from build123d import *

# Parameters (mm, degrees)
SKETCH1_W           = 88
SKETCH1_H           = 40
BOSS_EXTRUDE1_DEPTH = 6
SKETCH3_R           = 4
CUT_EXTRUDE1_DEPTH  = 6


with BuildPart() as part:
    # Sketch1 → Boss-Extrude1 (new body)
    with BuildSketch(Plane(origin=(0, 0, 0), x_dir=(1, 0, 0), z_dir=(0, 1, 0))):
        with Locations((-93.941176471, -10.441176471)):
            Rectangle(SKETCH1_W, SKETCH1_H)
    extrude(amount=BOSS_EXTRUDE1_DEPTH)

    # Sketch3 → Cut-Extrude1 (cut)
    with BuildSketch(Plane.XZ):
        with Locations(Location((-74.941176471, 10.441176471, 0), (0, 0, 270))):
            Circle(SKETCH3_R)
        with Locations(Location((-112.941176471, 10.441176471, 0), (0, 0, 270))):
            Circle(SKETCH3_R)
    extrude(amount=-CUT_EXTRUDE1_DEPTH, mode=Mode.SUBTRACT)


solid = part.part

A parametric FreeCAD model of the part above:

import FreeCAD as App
import Part
import Sketcher


def add_polygon(sketch, points):
    """Adds a closed chain of lines whose ends are joined by coincident constraints."""
    first, n = sketch.GeometryCount, len(points)
    for a, b in zip(points, points[1:] + points[:1]):
        sketch.addGeometry(Part.LineSegment(App.Vector(*a, 0), App.Vector(*b, 0)), False)
    for i in range(n):
        sketch.addConstraint(Sketcher.Constraint("Coincident", first + i, 2, first + (i + 1) % n, 1))

doc = App.newDocument("Part")
params = doc.addObject("Spreadsheet::Sheet", "Params")
for row, (alias, value) in enumerate([
    ("sketch1_width", "88 mm"),
    ("sketch1_height", "40 mm"),
    ("pad1_length", "6 mm"),
    ("sketch2_diameter", "8 mm"),
    ("pocket1_length", "6 mm"),
], start=1):
    params.set(f"A{row}", alias)
    params.set(f"B{row}", "=" + value)
    params.setAlias(f"B{row}", alias)

body = doc.addObject("PartDesign::Body", "Body")

# Sketch on XZ plane
sketch1 = body.newObject("Sketcher::SketchObject", "Sketch")
sketch1.AttachmentSupport = (doc.getObject("XZ_Plane"), [""])
sketch1.MapMode = "FlatFace"
add_polygon(sketch1, [(-138, -10), (-138, 30), (-50, 30), (-50, -10)])  # lines 0-3
sketch1.addConstraint(Sketcher.Constraint("Vertical", 0))
sketch1.addConstraint(Sketcher.Constraint("Horizontal", 1))
sketch1.addConstraint(Sketcher.Constraint("Vertical", 2))
sketch1.addConstraint(Sketcher.Constraint("Horizontal", 3))
sketch1.addConstraint(Sketcher.Constraint("DistanceX", 1, 1, 1, 2, 88.0))
sketch1.addConstraint(Sketcher.Constraint("DistanceY", 0, 1, 0, 2, 40.0))
sketch1.addConstraint(Sketcher.Constraint("DistanceX", 0, 2, -1, 1, 137.941176))
sketch1.addConstraint(Sketcher.Constraint("DistanceY", -1, 1, 0, 2, 30.441176))
sketch1.setExpression("Constraints[8]", "Params.sketch1_width")
sketch1.setExpression("Constraints[9]", "Params.sketch1_height")
pad1 = body.newObject("PartDesign::Pad", "Pad")
pad1.Profile = sketch1
pad1.setExpression("Length", "Params.pad1_length")
pad1.Reversed = True

# Sketch on XZ plane
sketch2 = body.newObject("Sketcher::SketchObject", "Sketch001")
sketch2.AttachmentSupport = (doc.getObject("XZ_Plane"), [""])
sketch2.MapMode = "FlatFace"
sketch2.addGeometry(Part.Circle(App.Vector(-74.9, 10.4, 0), App.Vector(0, 0, 1), 4), False)
sketch2.addGeometry(Part.Circle(App.Vector(-112.9, 10.4, 0), App.Vector(0, 0, 1), 4), False)
sketch2.addConstraint(Sketcher.Constraint("Equal", 0, 1))
sketch2.addConstraint(Sketcher.Constraint("Horizontal", 0, 3, 1, 3))
sketch2.addConstraint(Sketcher.Constraint("Diameter", 0, 8.0))
sketch2.addConstraint(Sketcher.Constraint("DistanceX", 1, 3, 0, 3, 38.0))
sketch2.addConstraint(Sketcher.Constraint("DistanceX", 0, 3, -1, 1, 74.941176))
sketch2.addConstraint(Sketcher.Constraint("DistanceY", -1, 1, 0, 3, 10.441176))
sketch2.setExpression("Constraints[2]", "Params.sketch2_diameter")
pocket1 = body.newObject("PartDesign::Pocket", "Pocket")
pocket1.Profile = sketch2
pocket1.setExpression("Length", "Params.pocket1_length")

doc.recompute()
